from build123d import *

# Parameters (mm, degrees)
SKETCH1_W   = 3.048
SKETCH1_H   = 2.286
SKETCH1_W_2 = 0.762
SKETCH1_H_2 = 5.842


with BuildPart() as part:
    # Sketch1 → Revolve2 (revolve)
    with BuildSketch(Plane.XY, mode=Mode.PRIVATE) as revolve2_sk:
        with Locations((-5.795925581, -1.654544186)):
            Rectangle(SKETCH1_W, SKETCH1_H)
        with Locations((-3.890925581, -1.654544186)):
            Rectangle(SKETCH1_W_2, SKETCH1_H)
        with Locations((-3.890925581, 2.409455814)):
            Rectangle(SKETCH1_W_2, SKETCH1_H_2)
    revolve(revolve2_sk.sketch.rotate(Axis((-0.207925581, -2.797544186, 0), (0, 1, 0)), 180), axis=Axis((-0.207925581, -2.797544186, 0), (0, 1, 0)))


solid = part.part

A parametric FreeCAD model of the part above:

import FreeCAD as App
import Part
import Sketcher

V = App.Vector
Q = App.Units.Quantity

doc = App.newDocument("Part")
body = doc.addObject("PartDesign::Body", "Body")

# Sketch on XY plane
sketch1 = body.newObject("Sketcher::SketchObject", "Sketch")
sketch1.AttachmentSupport = (doc.getObject("XY_Plane"), [""])
sketch1.MapMode = "FlatFace"
sketch1.addGeometry(Part.LineSegment(V(-7.3, -0.5, 0), V(-7.3, -2.8, 0)), False)
sketch1.addGeometry(Part.LineSegment(V(-7.3, -2.8, 0), V(-3.5, -2.8, 0)), False)
sketch1.addGeometry(Part.LineSegment(V(-3.5, -2.8, 0), V(-3.5, 5.3, 0)), False)
sketch1.addGeometry(Part.LineSegment(V(-3.5, 5.3, 0), V(-4.3, 5.3, 0)), False)
sketch1.addGeometry(Part.LineSegment(V(-4.3, 5.3, 0), V(-4.3, -0.5, 0)), False)
sketch1.addGeometry(Part.LineSegment(V(-4.3, -0.5, 0), V(-7.3, -0.5, 0)), False)
sketch1.addGeometry(Part.LineSegment(V(-0.2, -2.8, 0), V(-0.2, 5.3, 0)), True)  # axis
sketch1.addConstraint(Sketcher.Constraint("Coincident", 0, 2, 1, 1))
sketch1.addConstraint(Sketcher.Constraint("Coincident", 1, 2, 2, 1))
sketch1.addConstraint(Sketcher.Constraint("Coincident", 2, 2, 3, 1))
sketch1.addConstraint(Sketcher.Constraint("Coincident", 3, 2, 4, 1))
sketch1.addConstraint(Sketcher.Constraint("Coincident", 4, 2, 5, 1))
sketch1.addConstraint(Sketcher.Constraint("Coincident", 5, 2, 0, 1))
sketch1.addConstraint(Sketcher.Constraint("Vertical", 0))
sketch1.addConstraint(Sketcher.Constraint("Horizontal", 1))
sketch1.addConstraint(Sketcher.Constraint("Vertical", 2))
sketch1.addConstraint(Sketcher.Constraint("Horizontal", 3))
sketch1.addConstraint(Sketcher.Constraint("Vertical", 4))
sketch1.addConstraint(Sketcher.Constraint("Horizontal", 5))
sketch1.addConstraint(Sketcher.Constraint("Vertical", 6))
sketch1.addConstraint(Sketcher.Constraint("Horizontal", 1, 2, 6, 1))
sketch1.addConstraint(Sketcher.Constraint("Horizontal", 3, 2, 6, 2))
sketch1.addConstraint(Sketcher.Constraint("DistanceX", 1, 1, 1, 2, Q("0.15 in")))
sketch1.addConstraint(Sketcher.Constraint("DistanceX", 3, 2, 3, 1, Q("0.03 in")))
sketch1.addConstraint(Sketcher.Constraint("DistanceY", 0, 2, 0, 1, Q("0.09 in")))
sketch1.addConstraint(Sketcher.Constraint("DistanceY", 2, 1, 2, 2, Q("0.32 in")))
sketch1.addConstraint(Sketcher.Constraint("DistanceX", 1, 2, 6, 1, Q("0.13 in")))
sketch1.addConstraint(Sketcher.Constraint("DistanceX", 0, 2, -1, 1, Q("7.319926 mm")))
sketch1.addConstraint(Sketcher.Constraint("DistanceY", 0, 2, -1, 1, Q("2.797544 mm")))
revolution = body.newObject("PartDesign::Revolution", "Revolution")
revolution.Profile = sketch1
revolution.ReferenceAxis = (sketch1, ["Axis0"])
revolution.Angle = 360

doc.recompute()
